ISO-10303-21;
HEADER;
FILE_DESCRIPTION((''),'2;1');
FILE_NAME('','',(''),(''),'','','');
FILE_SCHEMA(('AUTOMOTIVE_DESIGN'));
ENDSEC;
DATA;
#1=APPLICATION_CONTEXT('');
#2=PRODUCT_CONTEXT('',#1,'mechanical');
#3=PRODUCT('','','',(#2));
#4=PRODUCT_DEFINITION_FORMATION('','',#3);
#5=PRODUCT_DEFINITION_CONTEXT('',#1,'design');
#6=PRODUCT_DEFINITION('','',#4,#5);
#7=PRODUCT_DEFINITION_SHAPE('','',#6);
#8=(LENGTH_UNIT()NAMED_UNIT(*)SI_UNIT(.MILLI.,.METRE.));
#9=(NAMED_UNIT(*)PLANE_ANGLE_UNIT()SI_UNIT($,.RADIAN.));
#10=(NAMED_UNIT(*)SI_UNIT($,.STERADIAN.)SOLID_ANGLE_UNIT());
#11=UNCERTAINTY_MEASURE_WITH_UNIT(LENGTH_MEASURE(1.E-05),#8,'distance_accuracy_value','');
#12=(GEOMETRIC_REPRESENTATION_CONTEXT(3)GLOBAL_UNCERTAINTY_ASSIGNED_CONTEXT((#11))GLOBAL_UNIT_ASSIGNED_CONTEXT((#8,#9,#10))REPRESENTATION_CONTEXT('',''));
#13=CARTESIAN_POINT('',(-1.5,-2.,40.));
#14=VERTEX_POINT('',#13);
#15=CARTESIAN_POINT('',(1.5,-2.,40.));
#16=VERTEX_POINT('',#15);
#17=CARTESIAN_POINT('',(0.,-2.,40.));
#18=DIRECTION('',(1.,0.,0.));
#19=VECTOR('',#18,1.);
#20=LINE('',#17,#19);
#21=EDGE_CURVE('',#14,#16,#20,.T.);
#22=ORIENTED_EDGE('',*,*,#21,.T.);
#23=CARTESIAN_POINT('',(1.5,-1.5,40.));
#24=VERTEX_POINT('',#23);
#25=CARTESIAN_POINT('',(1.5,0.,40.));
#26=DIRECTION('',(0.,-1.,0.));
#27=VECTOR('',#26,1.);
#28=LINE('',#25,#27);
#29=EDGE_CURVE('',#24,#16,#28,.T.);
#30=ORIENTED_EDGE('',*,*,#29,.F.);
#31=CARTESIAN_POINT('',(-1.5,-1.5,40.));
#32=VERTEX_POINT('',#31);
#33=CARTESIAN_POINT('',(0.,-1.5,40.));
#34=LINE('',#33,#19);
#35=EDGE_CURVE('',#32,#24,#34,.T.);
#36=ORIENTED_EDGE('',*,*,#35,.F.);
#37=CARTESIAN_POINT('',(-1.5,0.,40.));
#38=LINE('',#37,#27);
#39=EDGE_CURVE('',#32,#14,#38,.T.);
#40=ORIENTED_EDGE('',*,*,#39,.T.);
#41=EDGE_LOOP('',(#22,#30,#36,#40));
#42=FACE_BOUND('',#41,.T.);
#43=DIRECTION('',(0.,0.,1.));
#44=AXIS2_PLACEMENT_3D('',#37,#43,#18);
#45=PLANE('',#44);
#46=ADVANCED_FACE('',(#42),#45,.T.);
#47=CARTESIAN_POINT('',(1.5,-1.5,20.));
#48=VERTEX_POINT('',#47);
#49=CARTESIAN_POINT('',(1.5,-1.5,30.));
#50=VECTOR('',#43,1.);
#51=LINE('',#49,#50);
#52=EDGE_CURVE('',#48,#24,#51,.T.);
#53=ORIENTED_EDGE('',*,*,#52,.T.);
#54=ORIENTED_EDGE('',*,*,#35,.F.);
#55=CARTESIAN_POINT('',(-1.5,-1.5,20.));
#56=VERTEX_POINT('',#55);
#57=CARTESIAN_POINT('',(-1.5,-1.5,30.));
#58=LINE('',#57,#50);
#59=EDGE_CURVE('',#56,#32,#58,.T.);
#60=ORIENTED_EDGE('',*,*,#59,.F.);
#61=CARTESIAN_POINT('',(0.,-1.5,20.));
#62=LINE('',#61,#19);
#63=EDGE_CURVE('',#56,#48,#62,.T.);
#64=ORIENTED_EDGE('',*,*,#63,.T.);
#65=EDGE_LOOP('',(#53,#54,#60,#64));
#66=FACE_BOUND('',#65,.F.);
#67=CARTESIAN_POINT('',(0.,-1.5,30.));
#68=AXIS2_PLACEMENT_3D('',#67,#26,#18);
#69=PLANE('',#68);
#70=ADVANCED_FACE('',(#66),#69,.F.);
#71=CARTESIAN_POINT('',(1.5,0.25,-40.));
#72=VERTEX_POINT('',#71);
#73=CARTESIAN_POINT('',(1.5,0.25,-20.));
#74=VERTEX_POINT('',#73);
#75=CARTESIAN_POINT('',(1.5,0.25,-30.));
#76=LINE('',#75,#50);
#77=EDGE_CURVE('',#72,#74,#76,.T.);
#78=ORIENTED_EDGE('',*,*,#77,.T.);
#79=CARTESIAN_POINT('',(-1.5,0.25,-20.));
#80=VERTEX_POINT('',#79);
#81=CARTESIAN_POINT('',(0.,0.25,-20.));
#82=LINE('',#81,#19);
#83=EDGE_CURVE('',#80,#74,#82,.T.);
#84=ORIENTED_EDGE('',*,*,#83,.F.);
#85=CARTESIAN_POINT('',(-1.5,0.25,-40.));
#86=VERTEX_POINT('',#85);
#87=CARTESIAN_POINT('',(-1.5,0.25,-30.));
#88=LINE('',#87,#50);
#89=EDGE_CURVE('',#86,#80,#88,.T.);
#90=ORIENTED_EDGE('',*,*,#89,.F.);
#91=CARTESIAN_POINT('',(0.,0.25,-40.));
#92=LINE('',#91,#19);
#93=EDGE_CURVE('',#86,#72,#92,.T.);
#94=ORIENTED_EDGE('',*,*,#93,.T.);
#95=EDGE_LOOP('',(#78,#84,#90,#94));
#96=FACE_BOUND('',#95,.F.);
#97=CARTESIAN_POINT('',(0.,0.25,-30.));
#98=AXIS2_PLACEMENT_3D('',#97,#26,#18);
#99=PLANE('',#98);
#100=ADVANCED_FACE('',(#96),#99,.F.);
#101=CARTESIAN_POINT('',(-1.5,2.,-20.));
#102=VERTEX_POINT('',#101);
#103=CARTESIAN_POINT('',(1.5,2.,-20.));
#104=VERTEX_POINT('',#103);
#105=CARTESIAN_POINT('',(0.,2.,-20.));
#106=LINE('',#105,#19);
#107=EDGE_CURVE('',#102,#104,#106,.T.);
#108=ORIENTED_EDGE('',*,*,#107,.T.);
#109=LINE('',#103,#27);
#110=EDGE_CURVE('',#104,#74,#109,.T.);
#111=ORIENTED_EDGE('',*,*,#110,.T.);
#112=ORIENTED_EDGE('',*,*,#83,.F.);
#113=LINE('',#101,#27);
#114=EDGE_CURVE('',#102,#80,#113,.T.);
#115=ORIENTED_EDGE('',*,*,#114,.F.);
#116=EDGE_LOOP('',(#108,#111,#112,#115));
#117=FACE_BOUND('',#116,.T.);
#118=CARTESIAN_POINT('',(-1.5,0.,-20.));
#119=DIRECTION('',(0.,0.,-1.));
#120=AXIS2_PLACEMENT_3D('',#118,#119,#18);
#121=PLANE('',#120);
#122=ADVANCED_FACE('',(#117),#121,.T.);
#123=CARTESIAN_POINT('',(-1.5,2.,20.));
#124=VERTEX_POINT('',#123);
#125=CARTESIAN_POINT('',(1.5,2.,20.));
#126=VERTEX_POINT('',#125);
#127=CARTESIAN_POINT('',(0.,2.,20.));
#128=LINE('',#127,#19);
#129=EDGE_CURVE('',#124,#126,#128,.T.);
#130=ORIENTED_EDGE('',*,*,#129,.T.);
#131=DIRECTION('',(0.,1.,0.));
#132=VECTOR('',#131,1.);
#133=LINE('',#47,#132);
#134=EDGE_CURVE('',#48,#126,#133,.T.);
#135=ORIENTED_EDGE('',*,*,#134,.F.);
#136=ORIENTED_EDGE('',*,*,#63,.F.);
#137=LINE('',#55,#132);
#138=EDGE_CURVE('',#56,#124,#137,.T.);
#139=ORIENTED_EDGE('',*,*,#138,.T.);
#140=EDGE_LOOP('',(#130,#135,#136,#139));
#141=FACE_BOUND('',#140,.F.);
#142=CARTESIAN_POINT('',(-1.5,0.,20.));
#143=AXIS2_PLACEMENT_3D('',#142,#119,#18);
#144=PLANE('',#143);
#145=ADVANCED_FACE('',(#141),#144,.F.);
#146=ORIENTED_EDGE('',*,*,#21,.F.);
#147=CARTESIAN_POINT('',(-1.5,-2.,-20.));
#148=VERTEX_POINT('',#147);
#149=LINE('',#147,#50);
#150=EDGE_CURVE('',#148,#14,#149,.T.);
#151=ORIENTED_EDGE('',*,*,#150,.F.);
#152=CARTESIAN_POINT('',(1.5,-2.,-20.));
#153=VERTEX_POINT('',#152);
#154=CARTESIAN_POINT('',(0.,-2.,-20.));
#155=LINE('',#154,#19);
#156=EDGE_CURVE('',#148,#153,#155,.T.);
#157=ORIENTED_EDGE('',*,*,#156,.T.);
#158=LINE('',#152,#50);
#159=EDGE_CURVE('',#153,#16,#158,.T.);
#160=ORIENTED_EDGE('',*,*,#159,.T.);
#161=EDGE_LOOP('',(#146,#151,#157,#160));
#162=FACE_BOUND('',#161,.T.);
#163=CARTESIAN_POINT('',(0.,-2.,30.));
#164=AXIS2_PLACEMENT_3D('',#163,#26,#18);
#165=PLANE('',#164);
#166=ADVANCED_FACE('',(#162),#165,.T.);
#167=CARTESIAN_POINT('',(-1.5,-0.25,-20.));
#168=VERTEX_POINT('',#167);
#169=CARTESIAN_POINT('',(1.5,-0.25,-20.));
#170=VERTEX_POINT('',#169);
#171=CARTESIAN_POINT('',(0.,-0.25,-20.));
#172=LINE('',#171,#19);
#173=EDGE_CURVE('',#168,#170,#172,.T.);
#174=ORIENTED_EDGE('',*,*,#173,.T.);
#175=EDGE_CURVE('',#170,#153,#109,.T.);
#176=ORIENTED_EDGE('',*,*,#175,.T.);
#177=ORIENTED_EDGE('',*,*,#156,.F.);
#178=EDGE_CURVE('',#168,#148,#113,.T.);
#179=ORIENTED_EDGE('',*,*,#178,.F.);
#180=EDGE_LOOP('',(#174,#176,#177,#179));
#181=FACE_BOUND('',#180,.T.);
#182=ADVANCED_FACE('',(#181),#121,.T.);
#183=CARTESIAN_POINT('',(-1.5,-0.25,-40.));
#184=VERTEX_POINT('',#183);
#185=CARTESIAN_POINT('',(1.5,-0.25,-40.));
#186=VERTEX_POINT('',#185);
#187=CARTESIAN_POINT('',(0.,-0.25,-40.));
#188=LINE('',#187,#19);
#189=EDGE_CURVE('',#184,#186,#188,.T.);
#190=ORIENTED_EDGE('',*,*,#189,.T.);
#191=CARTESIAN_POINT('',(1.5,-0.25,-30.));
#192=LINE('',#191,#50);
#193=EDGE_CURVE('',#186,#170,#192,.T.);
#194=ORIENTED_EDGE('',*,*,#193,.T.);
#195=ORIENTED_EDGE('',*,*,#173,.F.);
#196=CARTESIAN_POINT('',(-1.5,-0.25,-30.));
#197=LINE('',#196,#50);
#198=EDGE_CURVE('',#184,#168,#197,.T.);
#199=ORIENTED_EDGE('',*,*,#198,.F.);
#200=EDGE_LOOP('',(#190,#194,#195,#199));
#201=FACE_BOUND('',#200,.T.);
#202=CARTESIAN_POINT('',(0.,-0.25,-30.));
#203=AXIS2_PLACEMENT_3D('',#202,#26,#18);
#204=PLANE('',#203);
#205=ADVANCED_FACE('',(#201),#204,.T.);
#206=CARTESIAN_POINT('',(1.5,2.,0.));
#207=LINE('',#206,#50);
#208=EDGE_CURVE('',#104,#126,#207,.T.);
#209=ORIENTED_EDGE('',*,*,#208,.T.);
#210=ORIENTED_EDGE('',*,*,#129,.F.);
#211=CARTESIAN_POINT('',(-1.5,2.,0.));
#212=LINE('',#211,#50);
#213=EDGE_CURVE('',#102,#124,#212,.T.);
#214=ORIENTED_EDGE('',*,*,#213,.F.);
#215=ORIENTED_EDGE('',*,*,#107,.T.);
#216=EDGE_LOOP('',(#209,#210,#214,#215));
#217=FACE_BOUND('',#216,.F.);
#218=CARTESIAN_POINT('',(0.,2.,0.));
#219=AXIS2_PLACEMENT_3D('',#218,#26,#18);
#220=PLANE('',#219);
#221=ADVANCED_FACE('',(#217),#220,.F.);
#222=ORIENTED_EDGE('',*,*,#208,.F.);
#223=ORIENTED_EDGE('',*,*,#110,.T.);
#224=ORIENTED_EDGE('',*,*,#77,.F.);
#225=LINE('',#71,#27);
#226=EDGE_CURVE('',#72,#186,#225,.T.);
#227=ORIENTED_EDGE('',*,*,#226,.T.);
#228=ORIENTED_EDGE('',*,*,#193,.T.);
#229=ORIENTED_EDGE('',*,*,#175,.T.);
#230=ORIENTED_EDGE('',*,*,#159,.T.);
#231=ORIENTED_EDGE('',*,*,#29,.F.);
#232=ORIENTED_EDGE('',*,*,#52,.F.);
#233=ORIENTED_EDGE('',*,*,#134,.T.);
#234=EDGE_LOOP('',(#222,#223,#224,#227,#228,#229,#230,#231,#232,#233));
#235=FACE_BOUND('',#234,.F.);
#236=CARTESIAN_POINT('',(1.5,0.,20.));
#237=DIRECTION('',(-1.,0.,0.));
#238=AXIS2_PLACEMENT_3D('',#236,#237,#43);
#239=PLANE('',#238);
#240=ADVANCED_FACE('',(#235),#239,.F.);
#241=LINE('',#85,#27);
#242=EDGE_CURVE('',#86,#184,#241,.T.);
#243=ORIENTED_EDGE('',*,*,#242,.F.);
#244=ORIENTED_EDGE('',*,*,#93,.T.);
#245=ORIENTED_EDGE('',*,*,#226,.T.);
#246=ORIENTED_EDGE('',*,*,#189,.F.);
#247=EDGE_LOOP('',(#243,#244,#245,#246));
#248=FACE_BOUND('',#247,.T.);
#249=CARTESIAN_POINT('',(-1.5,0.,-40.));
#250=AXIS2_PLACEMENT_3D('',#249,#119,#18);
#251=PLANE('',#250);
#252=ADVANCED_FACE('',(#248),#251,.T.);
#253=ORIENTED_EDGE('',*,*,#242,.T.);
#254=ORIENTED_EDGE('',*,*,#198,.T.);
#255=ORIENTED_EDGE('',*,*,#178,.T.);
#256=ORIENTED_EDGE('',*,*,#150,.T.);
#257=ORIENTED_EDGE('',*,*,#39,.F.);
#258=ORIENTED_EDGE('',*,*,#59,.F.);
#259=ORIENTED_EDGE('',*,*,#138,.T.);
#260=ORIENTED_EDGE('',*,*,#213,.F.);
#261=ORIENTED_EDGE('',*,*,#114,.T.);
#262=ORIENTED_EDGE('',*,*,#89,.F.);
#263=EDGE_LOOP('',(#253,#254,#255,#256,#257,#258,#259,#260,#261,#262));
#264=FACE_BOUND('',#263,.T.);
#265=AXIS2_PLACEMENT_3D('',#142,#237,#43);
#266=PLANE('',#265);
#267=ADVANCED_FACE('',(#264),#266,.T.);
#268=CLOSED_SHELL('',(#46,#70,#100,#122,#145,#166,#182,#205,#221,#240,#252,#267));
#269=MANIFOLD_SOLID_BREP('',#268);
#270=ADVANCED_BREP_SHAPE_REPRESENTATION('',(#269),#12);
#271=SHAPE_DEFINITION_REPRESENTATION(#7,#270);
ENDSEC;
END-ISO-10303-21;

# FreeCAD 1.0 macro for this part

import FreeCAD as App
import Part
import Sketcher
from FreeCAD import Vector


def add_polygon(sketch, points):
    """Adds a closed chain of lines whose ends are joined by coincident constraints."""
    first, n = sketch.GeometryCount, len(points)
    for a, b in zip(points, points[1:] + points[:1]):
        sketch.addGeometry(Part.LineSegment(App.Vector(*a, 0), App.Vector(*b, 0)), False)
    for i in range(n):
        sketch.addConstraint(Sketcher.Constraint("Coincident", first + i, 2, first + (i + 1) % n, 1))

doc = App.newDocument("Part")
body = doc.addObject("PartDesign::Body", "Body")

# Sketch on XZ plane
sketch1 = doc.addObject("Sketcher::SketchObject", "Sketch")
body.addObject(sketch1)
sketch1.AttachmentSupport = (doc.XZ_Plane, [""])
sketch1.MapMode = "FlatFace"
add_polygon(sketch1, [(-1.5, -20), (-1.5, -40), (1.5, -40), (1.5, -20)])  # lines 0-3
sketch1.addConstraint([
    Sketcher.Constraint("Vertical", 0),
    Sketcher.Constraint("Horizontal", 1),
    Sketcher.Constraint("Vertical", 2),
    Sketcher.Constraint("Horizontal", 3),
    Sketcher.Constraint("DistanceX", 1, 1, 1, 2, 3.0),
    Sketcher.Constraint("DistanceY", 0, 2, 0, 1, 20.0),
    Sketcher.Constraint("DistanceY", 0, 2, -1, 1, 40.0),
    Sketcher.Constraint("DistanceX", 0, 2, -1, 1, 1.5),
])
pad1 = doc.addObject("PartDesign::Pad", "Pad")
body.addObject(pad1)
pad1.Profile = sketch1
pad1.Length = 0.5
pad1.Midplane = True

# Sketch on XZ plane
sketch2 = doc.addObject("Sketcher::SketchObject", "Sketch001")
body.addObject(sketch2)
sketch2.AttachmentSupport = (doc.XZ_Plane, [""])
sketch2.MapMode = "FlatFace"
add_polygon(sketch2, [(-1.5, 20), (-1.5, -20), (1.5, -20), (1.5, 20)])  # lines 0-3
sketch2.addConstraint([
    Sketcher.Constraint("Vertical", 0),
    Sketcher.Constraint("Horizontal", 1),
    Sketcher.Constraint("Vertical", 2),
    Sketcher.Constraint("Horizontal", 3),
    Sketcher.Constraint("Symmetric", 0, 2, 2, 2, -1, 1),
    Sketcher.Constraint("DistanceX", 1, 1, 1, 2, 3.0),
    Sketcher.Constraint("DistanceY", 0, 2, 0, 1, 40.0),
])
pad2 = doc.addObject("PartDesign::Pad", "Pad001")
body.addObject(pad2)
pad2.Profile = sketch2
pad2.Length = 4
pad2.Midplane = True

# Sketch on XZ plane
sketch3 = doc.addObject("Sketcher::SketchObject", "Sketch002")
body.addObject(sketch3)
sketch3.AttachmentSupport = (doc.XZ_Plane, [""])
sketch3.MapMode = "FlatFace"
add_polygon(sketch3, [(-1.5, 40), (-1.5, 20), (1.5, 20), (1.5, 40)])  # lines 0-3
sketch3.addConstraint([
    Sketcher.Constraint("Vertical", 0),
    Sketcher.Constraint("Horizontal", 1),
    Sketcher.Constraint("Vertical", 2),
    Sketcher.Constraint("Horizontal", 3),
    Sketcher.Constraint("DistanceX", 1, 1, 1, 2, 3.0),
    Sketcher.Constraint("DistanceY", 0, 2, 0, 1, 20.0),
    Sketcher.Constraint("DistanceY", -1, 1, 0, 2, 20.0),
    Sketcher.Constraint("DistanceX", 0, 2, -1, 1, 1.5),
])
pad3 = doc.addObject("PartDesign::Pad", "Pad002")
body.addObject(pad3)
pad3.Profile = sketch3
pad3.Length = 2

# Sketch on XZ plane
sketch4 = doc.addObject("Sketcher::SketchObject", "Sketch003")
body.addObject(sketch4)
sketch4.AttachmentSupport = (doc.XZ_Plane, [""])
sketch4.MapMode = "FlatFace"
add_polygon(sketch4, [(-1.5, 40), (-1.5, 20), (1.5, 20), (1.5, 40)])  # lines 0-3
sketch4.addConstraint([
    Sketcher.Constraint("Vertical", 0),
    Sketcher.Constraint("Horizontal", 1),
    Sketcher.Constraint("Vertical", 2),
    Sketcher.Constraint("Horizontal", 3),
    Sketcher.Constraint("DistanceX", 1, 1, 1, 2, 3.0),
    Sketcher.Constraint("DistanceY", 0, 2, 0, 1, 20.0),
    Sketcher.Constraint("DistanceY", -1, 1, 0, 2, 20.0),
    Sketcher.Constraint("DistanceX", 0, 2, -1, 1, 1.5),
])
pocket1 = doc.addObject("PartDesign::Pocket", "Pocket")
body.addObject(pocket1)
pocket1.Profile = sketch4
pocket1.Length = 1.5
pocket1.Reversed = True

doc.recompute()
